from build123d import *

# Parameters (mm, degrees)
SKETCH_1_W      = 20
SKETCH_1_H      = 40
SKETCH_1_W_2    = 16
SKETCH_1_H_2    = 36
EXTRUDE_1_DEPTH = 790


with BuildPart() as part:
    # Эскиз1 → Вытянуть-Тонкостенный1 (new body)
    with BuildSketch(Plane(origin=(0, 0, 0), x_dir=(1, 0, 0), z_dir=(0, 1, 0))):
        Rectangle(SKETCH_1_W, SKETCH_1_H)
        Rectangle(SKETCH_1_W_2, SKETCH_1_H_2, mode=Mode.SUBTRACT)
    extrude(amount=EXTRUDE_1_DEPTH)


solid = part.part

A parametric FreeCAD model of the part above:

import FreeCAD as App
import Part
import Sketcher
from FreeCAD import Vector


def add_polygon(sketch, points):
    """Adds a closed chain of lines whose ends are joined by coincident constraints."""
    first, n = sketch.GeometryCount, len(points)
    for a, b in zip(points, points[1:] + points[:1]):
        sketch.addGeometry(Part.LineSegment(App.Vector(*a, 0), App.Vector(*b, 0)), False)
    for i in range(n):
        sketch.addConstraint(Sketcher.Constraint("Coincident", first + i, 2, first + (i + 1) % n, 1))

doc = App.newDocument("Part")
params = doc.addObject("Spreadsheet::Sheet", "Params")
for row, (alias, value) in enumerate([
    ("sketch1_width", "20 mm"),
    ("sketch1_width2", "16 mm"),
    ("sketch1_height", "40 mm"),
    ("sketch1_height2", "36 mm"),
    ("pad1_length", "790 mm"),
], start=1):
    params.set(f"A{row}", alias)
    params.set(f"B{row}", "=" + value)
    params.setAlias(f"B{row}", alias)

body = doc.addObject("PartDesign::Body", "Body")

# Sketch on XZ plane
sketch1 = body.newObject("Sketcher::SketchObject", "Sketch")
sketch1.AttachmentSupport = (doc.getObject("XZ_Plane"), [""])
sketch1.MapMode = "FlatFace"
add_polygon(sketch1, [(-10, -20), (-10, 20), (10, 20), (10, -20)])  # lines 0-3
add_polygon(sketch1, [(8, 18), (-8, 18), (-8, -18), (8, -18)])  # lines 4-7
sketch1.addConstraint(Sketcher.Constraint("Vertical", 0))
sketch1.addConstraint(Sketcher.Constraint("Horizontal", 1))
sketch1.addConstraint(Sketcher.Constraint("Vertical", 2))
sketch1.addConstraint(Sketcher.Constraint("Horizontal", 3))
sketch1.addConstraint(Sketcher.Constraint("Horizontal", 4))
sketch1.addConstraint(Sketcher.Constraint("Vertical", 5))
sketch1.addConstraint(Sketcher.Constraint("Horizontal", 6))
sketch1.addConstraint(Sketcher.Constraint("Vertical", 7))
sketch1.addConstraint(Sketcher.Constraint("Symmetric", 0, 2, 2, 2, -1, 1))
sketch1.addConstraint(Sketcher.Constraint("Symmetric", 4, 2, 6, 2, -1, 1))
sketch1.addConstraint(Sketcher.Constraint("DistanceX", 1, 1, 1, 2, 20.0))
sketch1.addConstraint(Sketcher.Constraint("DistanceX", 4, 2, 4, 1, 16.0))
sketch1.addConstraint(Sketcher.Constraint("DistanceY", 0, 1, 0, 2, 40.0))
sketch1.addConstraint(Sketcher.Constraint("DistanceY", 5, 2, 5, 1, 36.0))
sketch1.setExpression("Constraints[18]", "Params.sketch1_width")
sketch1.setExpression("Constraints[19]", "Params.sketch1_width2")
sketch1.setExpression("Constraints[20]", "Params.sketch1_height")
sketch1.setExpression("Constraints[21]", "Params.sketch1_height2")
pad1 = body.newObject("PartDesign::Pad", "Pad")
pad1.Profile = sketch1
pad1.setExpression("Length", "Params.pad1_length")
pad1.Reversed = True

doc.recompute()
